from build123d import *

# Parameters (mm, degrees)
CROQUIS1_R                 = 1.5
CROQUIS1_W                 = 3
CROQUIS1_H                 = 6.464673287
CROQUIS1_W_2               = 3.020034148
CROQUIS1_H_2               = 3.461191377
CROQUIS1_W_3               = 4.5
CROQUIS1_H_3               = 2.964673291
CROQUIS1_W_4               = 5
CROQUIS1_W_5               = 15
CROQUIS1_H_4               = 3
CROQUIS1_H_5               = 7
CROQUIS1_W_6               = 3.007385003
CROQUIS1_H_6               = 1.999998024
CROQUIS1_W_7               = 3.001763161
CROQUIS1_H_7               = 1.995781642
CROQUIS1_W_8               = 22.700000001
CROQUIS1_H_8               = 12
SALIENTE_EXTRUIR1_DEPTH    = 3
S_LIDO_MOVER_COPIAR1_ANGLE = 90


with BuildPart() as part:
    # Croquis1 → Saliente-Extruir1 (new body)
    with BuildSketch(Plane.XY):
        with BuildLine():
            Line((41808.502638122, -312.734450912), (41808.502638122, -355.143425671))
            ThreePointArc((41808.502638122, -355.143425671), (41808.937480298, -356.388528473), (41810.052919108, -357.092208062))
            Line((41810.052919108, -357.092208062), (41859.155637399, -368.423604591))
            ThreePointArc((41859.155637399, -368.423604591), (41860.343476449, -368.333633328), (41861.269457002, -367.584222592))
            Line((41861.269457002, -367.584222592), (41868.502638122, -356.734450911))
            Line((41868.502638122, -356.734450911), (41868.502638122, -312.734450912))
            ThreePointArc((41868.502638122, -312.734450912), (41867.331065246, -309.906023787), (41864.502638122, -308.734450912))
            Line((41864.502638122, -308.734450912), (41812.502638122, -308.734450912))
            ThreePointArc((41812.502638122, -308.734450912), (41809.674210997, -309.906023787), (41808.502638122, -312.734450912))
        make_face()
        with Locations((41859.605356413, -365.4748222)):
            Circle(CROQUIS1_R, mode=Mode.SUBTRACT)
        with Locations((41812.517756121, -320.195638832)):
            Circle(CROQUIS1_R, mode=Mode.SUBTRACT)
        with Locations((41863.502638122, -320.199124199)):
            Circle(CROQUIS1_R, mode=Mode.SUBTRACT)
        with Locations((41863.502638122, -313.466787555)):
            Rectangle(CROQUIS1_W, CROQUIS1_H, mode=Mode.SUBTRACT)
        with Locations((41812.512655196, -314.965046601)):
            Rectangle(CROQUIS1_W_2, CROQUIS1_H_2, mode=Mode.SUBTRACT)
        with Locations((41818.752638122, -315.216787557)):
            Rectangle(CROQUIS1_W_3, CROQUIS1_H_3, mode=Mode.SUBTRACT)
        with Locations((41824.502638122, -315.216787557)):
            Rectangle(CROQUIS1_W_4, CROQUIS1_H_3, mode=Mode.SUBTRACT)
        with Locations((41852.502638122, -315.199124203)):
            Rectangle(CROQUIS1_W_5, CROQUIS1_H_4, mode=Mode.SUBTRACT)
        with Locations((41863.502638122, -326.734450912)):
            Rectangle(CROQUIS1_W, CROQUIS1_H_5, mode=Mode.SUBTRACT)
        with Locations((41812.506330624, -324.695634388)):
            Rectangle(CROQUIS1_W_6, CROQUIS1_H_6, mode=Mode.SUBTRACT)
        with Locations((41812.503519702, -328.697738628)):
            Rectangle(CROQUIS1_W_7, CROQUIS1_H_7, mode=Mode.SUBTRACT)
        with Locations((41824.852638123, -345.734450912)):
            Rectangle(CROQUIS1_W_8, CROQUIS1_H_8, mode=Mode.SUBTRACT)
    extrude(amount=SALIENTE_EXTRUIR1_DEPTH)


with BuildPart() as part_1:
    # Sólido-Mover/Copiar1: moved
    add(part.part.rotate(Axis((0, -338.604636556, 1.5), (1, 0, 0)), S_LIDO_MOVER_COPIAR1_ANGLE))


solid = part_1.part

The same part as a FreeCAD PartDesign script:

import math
import FreeCAD as App
import Part
import Sketcher
Q = App.Units.Quantity

doc = App.newDocument("Part")
params = doc.addObject("Spreadsheet::Sheet", "Params")
for row, (alias, value) in enumerate([
    ("sketch1_diameter", "3 mm"),
    ("sketch1_radius", "2 mm"),
    ("sketch1_radius2", "4 mm"),
    ("sketch1_width", "52 mm"),
    ("sketch1_width2", "5 mm"),
    ("pad1_length", "3 mm"),
], start=1):
    params.set(f"A{row}", alias)
    params.set(f"B{row}", "=" + value)
    params.setAlias(f"B{row}", alias)

body = doc.addObject("PartDesign::Body", "Body")

sketch1 = doc.addObject("Sketcher::SketchObject", "Sketch")
body.addObject(sketch1)
sketch1.AttachmentSupport = (doc.XY_Plane, [""])
sketch1.MapMode = "FlatFace"
sketch1.addGeometry([
    Part.LineSegment(App.Vector(41808.502638, -312.734451, 0), App.Vector(41808.502638, -355.143426, 0)),
    Part.ArcOfCircle(Part.Circle(App.Vector(41810.502638, -355.143426, 0), App.Vector(0, 0, 1), 2), math.radians(180), math.radians(257.005383)),
    Part.LineSegment(App.Vector(41810.052919, -357.092208, 0), App.Vector(41859.155637, -368.423605, 0)),
    Part.ArcOfCircle(Part.Circle(App.Vector(41859.605356, -366.474822, 0), App.Vector(0, 0, 1), 2), math.radians(-102.994617), math.radians(-33.690068)),
    Part.LineSegment(App.Vector(41861.269457, -367.584223, 0), App.Vector(41868.502638, -356.734451, 0)),
    Part.LineSegment(App.Vector(41868.502638, -356.734451, 0), App.Vector(41868.502638, -312.734451, 0)),
    Part.ArcOfCircle(Part.Circle(App.Vector(41864.502638, -312.734451, 0), App.Vector(0, 0, 1), 4), math.radians(0), math.radians(90)),
    Part.LineSegment(App.Vector(41864.502638, -308.734451, 0), App.Vector(41812.502638, -308.734451, 0)),
    Part.ArcOfCircle(Part.Circle(App.Vector(41812.502638, -312.734451, 0), App.Vector(0, 0, 1), 4), math.radians(90), math.radians(180)),
    Part.LineSegment(App.Vector(41836.202638, -351.734451, 0), App.Vector(41813.502638, -351.734451, 0)),
    Part.LineSegment(App.Vector(41813.502638, -351.734451, 0), App.Vector(41813.502638, -339.734451, 0)),
    Part.LineSegment(App.Vector(41813.502638, -339.734451, 0), App.Vector(41836.202638, -339.734451, 0)),
    Part.LineSegment(App.Vector(41836.202638, -339.734451, 0), App.Vector(41836.202638, -351.734451, 0)),
    Part.Circle(App.Vector(41859.605356, -365.474822, 0), App.Vector(0, 0, 1), 1.5),
    Part.LineSegment(App.Vector(41814.004401, -329.695629, 0), App.Vector(41811.002638, -329.695629, 0)),
    Part.LineSegment(App.Vector(41811.002638, -329.695629, 0), App.Vector(41811.002638, -327.699848, 0)),
    Part.LineSegment(App.Vector(41811.002638, -327.699848, 0), App.Vector(41814.004401, -327.699848, 0)),
    Part.LineSegment(App.Vector(41814.004401, -327.699848, 0), App.Vector(41814.004401, -329.695629, 0)),
    Part.LineSegment(App.Vector(41814.010023, -325.695633, 0), App.Vector(41811.002638, -325.695633, 0)),
    Part.LineSegment(App.Vector(41811.002638, -325.695633, 0), App.Vector(41811.002638, -323.695635, 0)),
    Part.LineSegment(App.Vector(41811.002638, -323.695635, 0), App.Vector(41814.010023, -323.695635, 0)),
    Part.LineSegment(App.Vector(41814.010023, -323.695635, 0), App.Vector(41814.010023, -325.695633, 0)),
    Part.Circle(App.Vector(41812.517756, -320.195639, 0), App.Vector(0, 0, 1), 1.5),
    Part.LineSegment(App.Vector(41814.022672, -316.695642, 0), App.Vector(41811.002638, -316.695642, 0)),
    Part.LineSegment(App.Vector(41811.002638, -316.695642, 0), App.Vector(41811.002638, -313.234451, 0)),
    Part.LineSegment(App.Vector(41811.002638, -313.234451, 0), App.Vector(41814.022672, -313.234451, 0)),
    Part.LineSegment(App.Vector(41814.022672, -313.234451, 0), App.Vector(41814.022672, -316.695642, 0)),
    Part.LineSegment(App.Vector(41821.002638, -316.699124, 0), App.Vector(41816.502638, -316.699124, 0)),
    Part.LineSegment(App.Vector(41816.502638, -316.699124, 0), App.Vector(41816.502638, -313.734451, 0)),
    Part.LineSegment(App.Vector(41816.502638, -313.734451, 0), App.Vector(41821.002638, -313.734451, 0)),
    Part.LineSegment(App.Vector(41821.002638, -313.734451, 0), App.Vector(41821.002638, -316.699124, 0)),
    Part.LineSegment(App.Vector(41827.002638, -316.699124, 0), App.Vector(41822.002638, -316.699124, 0)),
    Part.LineSegment(App.Vector(41822.002638, -316.699124, 0), App.Vector(41822.002638, -313.734451, 0)),
    Part.LineSegment(App.Vector(41822.002638, -313.734451, 0), App.Vector(41827.002638, -313.734451, 0)),
    Part.LineSegment(App.Vector(41827.002638, -313.734451, 0), App.Vector(41827.002638, -316.699124, 0)),
    Part.LineSegment(App.Vector(41865.002638, -330.234451, 0), App.Vector(41862.002638, -330.234451, 0)),
    Part.LineSegment(App.Vector(41862.002638, -330.234451, 0), App.Vector(41862.002638, -323.234451, 0)),
    Part.LineSegment(App.Vector(41862.002638, -323.234451, 0), App.Vector(41865.002638, -323.234451, 0)),
    Part.LineSegment(App.Vector(41865.002638, -323.234451, 0), App.Vector(41865.002638, -330.234451, 0)),
    Part.Circle(App.Vector(41863.502638, -320.199124, 0), App.Vector(0, 0, 1), 1.5),
    Part.LineSegment(App.Vector(41860.002638, -316.699124, 0), App.Vector(41845.002638, -316.699124, 0)),
    Part.LineSegment(App.Vector(41845.002638, -316.699124, 0), App.Vector(41845.002638, -313.699124, 0)),
    Part.LineSegment(App.Vector(41845.002638, -313.699124, 0), App.Vector(41860.002638, -313.699124, 0)),
    Part.LineSegment(App.Vector(41860.002638, -313.699124, 0), App.Vector(41860.002638, -316.699124, 0)),
    Part.LineSegment(App.Vector(41865.002638, -316.699124, 0), App.Vector(41862.002638, -316.699124, 0)),
    Part.LineSegment(App.Vector(41862.002638, -316.699124, 0), App.Vector(41862.002638, -310.234451, 0)),
    Part.LineSegment(App.Vector(41862.002638, -310.234451, 0), App.Vector(41865.002638, -310.234451, 0)),
    Part.LineSegment(App.Vector(41865.002638, -310.234451, 0), App.Vector(41865.002638, -316.699124, 0)),
], False)
sketch1.addConstraint([
    Sketcher.Constraint("Tangent", 0, 2, 1, 1),
    Sketcher.Constraint("Tangent", 1, 2, 2, 1),
    Sketcher.Constraint("Tangent", 2, 2, 3, 1),
    Sketcher.Constraint("Tangent", 3, 2, 4, 1),
    Sketcher.Constraint("Coincident", 4, 2, 5, 1),
    Sketcher.Constraint("Tangent", 5, 2, 6, 1),
    Sketcher.Constraint("Tangent", 6, 2, 7, 1),
    Sketcher.Constraint("Tangent", 7, 2, 8, 1),
    Sketcher.Constraint("Tangent", 8, 2, 0, 1),
    Sketcher.Constraint("Coincident", 9, 2, 10, 1),
    Sketcher.Constraint("Coincident", 10, 2, 11, 1),
    Sketcher.Constraint("Coincident", 11, 2, 12, 1),
    Sketcher.Constraint("Coincident", 12, 2, 9, 1),
    Sketcher.Constraint("Coincident", 14, 2, 15, 1),
    Sketcher.Constraint("Coincident", 15, 2, 16, 1),
    Sketcher.Constraint("Coincident", 16, 2, 17, 1),
    Sketcher.Constraint("Coincident", 17, 2, 14, 1),
    Sketcher.Constraint("Coincident", 18, 2, 19, 1),
    Sketcher.Constraint("Coincident", 19, 2, 20, 1),
    Sketcher.Constraint("Coincident", 20, 2, 21, 1),
    Sketcher.Constraint("Coincident", 21, 2, 18, 1),
    Sketcher.Constraint("Coincident", 23, 2, 24, 1),
    Sketcher.Constraint("Coincident", 24, 2, 25, 1),
    Sketcher.Constraint("Coincident", 25, 2, 26, 1),
    Sketcher.Constraint("Coincident", 26, 2, 23, 1),
    Sketcher.Constraint("Coincident", 27, 2, 28, 1),
    Sketcher.Constraint("Coincident", 28, 2, 29, 1),
    Sketcher.Constraint("Coincident", 29, 2, 30, 1),
    Sketcher.Constraint("Coincident", 30, 2, 27, 1),
    Sketcher.Constraint("Coincident", 31, 2, 32, 1),
    Sketcher.Constraint("Coincident", 32, 2, 33, 1),
    Sketcher.Constraint("Coincident", 33, 2, 34, 1),
    Sketcher.Constraint("Coincident", 34, 2, 31, 1),
    Sketcher.Constraint("Coincident", 35, 2, 36, 1),
    Sketcher.Constraint("Coincident", 36, 2, 37, 1),
    Sketcher.Constraint("Coincident", 37, 2, 38, 1),
    Sketcher.Constraint("Coincident", 38, 2, 35, 1),
    Sketcher.Constraint("Coincident", 40, 2, 41, 1),
    Sketcher.Constraint("Coincident", 41, 2, 42, 1),
    Sketcher.Constraint("Coincident", 42, 2, 43, 1),
    Sketcher.Constraint("Coincident", 43, 2, 40, 1),
    Sketcher.Constraint("Coincident", 44, 2, 45, 1),
    Sketcher.Constraint("Coincident", 45, 2, 46, 1),
    Sketcher.Constraint("Coincident", 46, 2, 47, 1),
    Sketcher.Constraint("Coincident", 47, 2, 44, 1),
    Sketcher.Constraint("Vertical", 0),
    Sketcher.Constraint("Vertical", 5),
    Sketcher.Constraint("Horizontal", 7),
    Sketcher.Constraint("Horizontal", 9),
    Sketcher.Constraint("Vertical", 10),
    Sketcher.Constraint("Horizontal", 11),
    Sketcher.Constraint("Vertical", 12),
    Sketcher.Constraint("Horizontal", 14),
    Sketcher.Constraint("Vertical", 15),
    Sketcher.Constraint("Horizontal", 16),
    Sketcher.Constraint("Vertical", 17),
    Sketcher.Constraint("Horizontal", 18),
    Sketcher.Constraint("Vertical", 19),
    Sketcher.Constraint("Horizontal", 20),
    Sketcher.Constraint("Vertical", 21),
    Sketcher.Constraint("Horizontal", 23),
    Sketcher.Constraint("Vertical", 24),
    Sketcher.Constraint("Horizontal", 25),
    Sketcher.Constraint("Vertical", 26),
    Sketcher.Constraint("Horizontal", 27),
    Sketcher.Constraint("Vertical", 28),
    Sketcher.Constraint("Horizontal", 29),
    Sketcher.Constraint("Vertical", 30),
    Sketcher.Constraint("Horizontal", 31),
    Sketcher.Constraint("Vertical", 32),
    Sketcher.Constraint("Horizontal", 33),
    Sketcher.Constraint("Vertical", 34),
    Sketcher.Constraint("Horizontal", 35),
    Sketcher.Constraint("Vertical", 36),
    Sketcher.Constraint("Horizontal", 37),
    Sketcher.Constraint("Vertical", 38),
    Sketcher.Constraint("Horizontal", 40),
    Sketcher.Constraint("Vertical", 41),
    Sketcher.Constraint("Horizontal", 42),
    Sketcher.Constraint("Vertical", 43),
    Sketcher.Constraint("Horizontal", 44),
    Sketcher.Constraint("Vertical", 45),
    Sketcher.Constraint("Horizontal", 46),
    Sketcher.Constraint("Vertical", 47),
    Sketcher.Constraint("Equal", 1, 3),
    Sketcher.Constraint("Equal", 6, 8),
    Sketcher.Constraint("Equal", 13, 22),
    Sketcher.Constraint("Equal", 22, 39),
    Sketcher.Constraint("Horizontal", 30, 2, 31, 2),
    Sketcher.Constraint("Horizontal", 29, 2, 32, 2),
    Sketcher.Constraint("Horizontal", 34, 2, 40, 2),
    Sketcher.Constraint("Horizontal", 43, 2, 44, 2),
    Sketcher.Constraint("Vertical", 3, 3, 13, 3),
    Sketcher.Constraint("Vertical", 15, 2, 18, 2),
    Sketcher.Constraint("Vertical", 19, 2, 23, 2),
    Sketcher.Constraint("Vertical", 36, 2, 44, 2),
    Sketcher.Constraint("Vertical", 38, 2, 46, 2),
    Sketcher.Constraint("Equal", 46, 41),
    Sketcher.Constraint("Diameter", 13, Q("3 mm")),
    Sketcher.Constraint("Radius", 1, Q("2 mm")),
    Sketcher.Constraint("Radius", 6, Q("4 mm")),
    Sketcher.Constraint("DistanceX", 7, 2, 7, 1, Q("52 mm")),
    Sketcher.Constraint("DistanceX", 31, 2, 31, 1, Q("5 mm")),
    Sketcher.Constraint("DistanceX", 35, 2, 35, 1, Q("3 mm")),
    Sketcher.Constraint("DistanceX", 40, 2, 40, 1, Q("15 mm")),
    Sketcher.Constraint("DistanceY", 5, 1, 5, 2, Q("44 mm")),
    Sketcher.Constraint("DistanceY", 10, 1, 10, 2, Q("12 mm")),
    Sketcher.Constraint("DistanceY", 19, 1, 19, 2, Q("1.999998 mm")),
    Sketcher.Constraint("DistanceY", 36, 1, 36, 2, Q("7 mm")),
    Sketcher.Constraint("DistanceX", 9, 2, 9, 1, Q("22.7 mm")),
    Sketcher.Constraint("DistanceX", 27, 2, 27, 1, Q("4.5 mm")),
    Sketcher.Constraint("DistanceY", 3, 3, 13, 3, Q("1 mm")),
    Sketcher.Constraint("DistanceX", 39, 3, 6, 3, Q("1 mm")),
    Sketcher.Constraint("DistanceX", 1, 3, 9, 2, Q("3 mm")),
    Sketcher.Constraint("DistanceY", 9, 2, 8, 3, Q("39 mm")),
    Sketcher.Constraint("DistanceX", 8, 3, 27, 2, Q("4 mm")),
    Sketcher.Constraint("DistanceY", 28, 2, 8, 3, Q("1 mm")),
    Sketcher.Constraint("DistanceX", 30, 2, 31, 2, Q("1 mm")),
    Sketcher.Constraint("DistanceX", 34, 2, 40, 2, Q("18 mm")),
    Sketcher.Constraint("DistanceX", 40, 2, 36, 2, Q("17 mm")),
    Sketcher.Constraint("DistanceX", 14, 2, 10, 2, Q("2.5 mm")),
    Sketcher.Constraint("DistanceY", 24, 2, 8, 3, Q("0.5 mm")),
    Sketcher.Constraint("DistanceY", 35, 2, 6, 3, Q("17.5 mm")),
    Sketcher.Constraint("DistanceY", 39, 3, 40, 2, Q("3.5 mm")),
    Sketcher.Constraint("DistanceY", 45, 2, 6, 2, Q("1.5 mm")),
    Sketcher.Constraint("DistanceX", 2, 2, 39, 3, Q("4.347001 mm")),
    Sketcher.Constraint("DistanceY", 15, 1, 15, 2, Q("1.995782 mm")),
    Sketcher.Constraint("DistanceY", 24, 1, 24, 2, Q("3.461191 mm")),
    Sketcher.Constraint("DistanceX", -1, 1, 16, 2, Q("41814.004401 mm")),
    Sketcher.Constraint("DistanceX", 22, 3, 13, 3, Q("47.0876 mm")),
    Sketcher.Constraint("DistanceY", 13, 3, 39, 3, Q("45.275698 mm")),
    Sketcher.Constraint("DistanceX", 3, 3, 3, 2, Q("1.664101 mm")),
    Sketcher.Constraint("Distance", 2, Q("50.393229 mm")),
    Sketcher.Constraint("DistanceX", 14, 2, 14, 1, Q("3.001763 mm")),
    Sketcher.Constraint("DistanceX", 18, 2, 18, 1, Q("3.007385 mm")),
    Sketcher.Constraint("DistanceX", 23, 2, 23, 1, Q("3.020034 mm")),
    Sketcher.Constraint("DistanceY", 6, 3, -1, 1, Q("312.734451 mm")),
    Sketcher.Constraint("DistanceY", 22, 3, -1, 1, Q("320.195639 mm")),
    Sketcher.Constraint("DistanceY", 14, 2, -1, 1, Q("329.695629 mm")),
    Sketcher.Constraint("DistanceY", 18, 2, -1, 1, Q("325.695633 mm")),
])
sketch1.setExpression("Constraints[98]", "Params.sketch1_diameter")
sketch1.setExpression("Constraints[99]", "Params.sketch1_radius")
sketch1.setExpression("Constraints[100]", "Params.sketch1_radius2")
sketch1.setExpression("Constraints[101]", "Params.sketch1_width")
sketch1.setExpression("Constraints[102]", "Params.sketch1_width2")
pad1 = doc.addObject("PartDesign::Pad", "Pad")
body.addObject(pad1)
pad1.Profile = sketch1
pad1.setExpression("Length", "Params.pad1_length")
body2 = doc.addObject("PartDesign::Body", "Body001")
doc.recompute()

body.Placement = App.Placement(App.Vector(0, -337.104637, 340.104637), App.Rotation(App.Vector(1, 0, 0), 90))
boolean = doc.addObject("PartDesign::Boolean", "Boolean")
body2.addObject(boolean)
boolean.Type = "Fuse"
boolean.addObjects([body])

doc.recompute()
